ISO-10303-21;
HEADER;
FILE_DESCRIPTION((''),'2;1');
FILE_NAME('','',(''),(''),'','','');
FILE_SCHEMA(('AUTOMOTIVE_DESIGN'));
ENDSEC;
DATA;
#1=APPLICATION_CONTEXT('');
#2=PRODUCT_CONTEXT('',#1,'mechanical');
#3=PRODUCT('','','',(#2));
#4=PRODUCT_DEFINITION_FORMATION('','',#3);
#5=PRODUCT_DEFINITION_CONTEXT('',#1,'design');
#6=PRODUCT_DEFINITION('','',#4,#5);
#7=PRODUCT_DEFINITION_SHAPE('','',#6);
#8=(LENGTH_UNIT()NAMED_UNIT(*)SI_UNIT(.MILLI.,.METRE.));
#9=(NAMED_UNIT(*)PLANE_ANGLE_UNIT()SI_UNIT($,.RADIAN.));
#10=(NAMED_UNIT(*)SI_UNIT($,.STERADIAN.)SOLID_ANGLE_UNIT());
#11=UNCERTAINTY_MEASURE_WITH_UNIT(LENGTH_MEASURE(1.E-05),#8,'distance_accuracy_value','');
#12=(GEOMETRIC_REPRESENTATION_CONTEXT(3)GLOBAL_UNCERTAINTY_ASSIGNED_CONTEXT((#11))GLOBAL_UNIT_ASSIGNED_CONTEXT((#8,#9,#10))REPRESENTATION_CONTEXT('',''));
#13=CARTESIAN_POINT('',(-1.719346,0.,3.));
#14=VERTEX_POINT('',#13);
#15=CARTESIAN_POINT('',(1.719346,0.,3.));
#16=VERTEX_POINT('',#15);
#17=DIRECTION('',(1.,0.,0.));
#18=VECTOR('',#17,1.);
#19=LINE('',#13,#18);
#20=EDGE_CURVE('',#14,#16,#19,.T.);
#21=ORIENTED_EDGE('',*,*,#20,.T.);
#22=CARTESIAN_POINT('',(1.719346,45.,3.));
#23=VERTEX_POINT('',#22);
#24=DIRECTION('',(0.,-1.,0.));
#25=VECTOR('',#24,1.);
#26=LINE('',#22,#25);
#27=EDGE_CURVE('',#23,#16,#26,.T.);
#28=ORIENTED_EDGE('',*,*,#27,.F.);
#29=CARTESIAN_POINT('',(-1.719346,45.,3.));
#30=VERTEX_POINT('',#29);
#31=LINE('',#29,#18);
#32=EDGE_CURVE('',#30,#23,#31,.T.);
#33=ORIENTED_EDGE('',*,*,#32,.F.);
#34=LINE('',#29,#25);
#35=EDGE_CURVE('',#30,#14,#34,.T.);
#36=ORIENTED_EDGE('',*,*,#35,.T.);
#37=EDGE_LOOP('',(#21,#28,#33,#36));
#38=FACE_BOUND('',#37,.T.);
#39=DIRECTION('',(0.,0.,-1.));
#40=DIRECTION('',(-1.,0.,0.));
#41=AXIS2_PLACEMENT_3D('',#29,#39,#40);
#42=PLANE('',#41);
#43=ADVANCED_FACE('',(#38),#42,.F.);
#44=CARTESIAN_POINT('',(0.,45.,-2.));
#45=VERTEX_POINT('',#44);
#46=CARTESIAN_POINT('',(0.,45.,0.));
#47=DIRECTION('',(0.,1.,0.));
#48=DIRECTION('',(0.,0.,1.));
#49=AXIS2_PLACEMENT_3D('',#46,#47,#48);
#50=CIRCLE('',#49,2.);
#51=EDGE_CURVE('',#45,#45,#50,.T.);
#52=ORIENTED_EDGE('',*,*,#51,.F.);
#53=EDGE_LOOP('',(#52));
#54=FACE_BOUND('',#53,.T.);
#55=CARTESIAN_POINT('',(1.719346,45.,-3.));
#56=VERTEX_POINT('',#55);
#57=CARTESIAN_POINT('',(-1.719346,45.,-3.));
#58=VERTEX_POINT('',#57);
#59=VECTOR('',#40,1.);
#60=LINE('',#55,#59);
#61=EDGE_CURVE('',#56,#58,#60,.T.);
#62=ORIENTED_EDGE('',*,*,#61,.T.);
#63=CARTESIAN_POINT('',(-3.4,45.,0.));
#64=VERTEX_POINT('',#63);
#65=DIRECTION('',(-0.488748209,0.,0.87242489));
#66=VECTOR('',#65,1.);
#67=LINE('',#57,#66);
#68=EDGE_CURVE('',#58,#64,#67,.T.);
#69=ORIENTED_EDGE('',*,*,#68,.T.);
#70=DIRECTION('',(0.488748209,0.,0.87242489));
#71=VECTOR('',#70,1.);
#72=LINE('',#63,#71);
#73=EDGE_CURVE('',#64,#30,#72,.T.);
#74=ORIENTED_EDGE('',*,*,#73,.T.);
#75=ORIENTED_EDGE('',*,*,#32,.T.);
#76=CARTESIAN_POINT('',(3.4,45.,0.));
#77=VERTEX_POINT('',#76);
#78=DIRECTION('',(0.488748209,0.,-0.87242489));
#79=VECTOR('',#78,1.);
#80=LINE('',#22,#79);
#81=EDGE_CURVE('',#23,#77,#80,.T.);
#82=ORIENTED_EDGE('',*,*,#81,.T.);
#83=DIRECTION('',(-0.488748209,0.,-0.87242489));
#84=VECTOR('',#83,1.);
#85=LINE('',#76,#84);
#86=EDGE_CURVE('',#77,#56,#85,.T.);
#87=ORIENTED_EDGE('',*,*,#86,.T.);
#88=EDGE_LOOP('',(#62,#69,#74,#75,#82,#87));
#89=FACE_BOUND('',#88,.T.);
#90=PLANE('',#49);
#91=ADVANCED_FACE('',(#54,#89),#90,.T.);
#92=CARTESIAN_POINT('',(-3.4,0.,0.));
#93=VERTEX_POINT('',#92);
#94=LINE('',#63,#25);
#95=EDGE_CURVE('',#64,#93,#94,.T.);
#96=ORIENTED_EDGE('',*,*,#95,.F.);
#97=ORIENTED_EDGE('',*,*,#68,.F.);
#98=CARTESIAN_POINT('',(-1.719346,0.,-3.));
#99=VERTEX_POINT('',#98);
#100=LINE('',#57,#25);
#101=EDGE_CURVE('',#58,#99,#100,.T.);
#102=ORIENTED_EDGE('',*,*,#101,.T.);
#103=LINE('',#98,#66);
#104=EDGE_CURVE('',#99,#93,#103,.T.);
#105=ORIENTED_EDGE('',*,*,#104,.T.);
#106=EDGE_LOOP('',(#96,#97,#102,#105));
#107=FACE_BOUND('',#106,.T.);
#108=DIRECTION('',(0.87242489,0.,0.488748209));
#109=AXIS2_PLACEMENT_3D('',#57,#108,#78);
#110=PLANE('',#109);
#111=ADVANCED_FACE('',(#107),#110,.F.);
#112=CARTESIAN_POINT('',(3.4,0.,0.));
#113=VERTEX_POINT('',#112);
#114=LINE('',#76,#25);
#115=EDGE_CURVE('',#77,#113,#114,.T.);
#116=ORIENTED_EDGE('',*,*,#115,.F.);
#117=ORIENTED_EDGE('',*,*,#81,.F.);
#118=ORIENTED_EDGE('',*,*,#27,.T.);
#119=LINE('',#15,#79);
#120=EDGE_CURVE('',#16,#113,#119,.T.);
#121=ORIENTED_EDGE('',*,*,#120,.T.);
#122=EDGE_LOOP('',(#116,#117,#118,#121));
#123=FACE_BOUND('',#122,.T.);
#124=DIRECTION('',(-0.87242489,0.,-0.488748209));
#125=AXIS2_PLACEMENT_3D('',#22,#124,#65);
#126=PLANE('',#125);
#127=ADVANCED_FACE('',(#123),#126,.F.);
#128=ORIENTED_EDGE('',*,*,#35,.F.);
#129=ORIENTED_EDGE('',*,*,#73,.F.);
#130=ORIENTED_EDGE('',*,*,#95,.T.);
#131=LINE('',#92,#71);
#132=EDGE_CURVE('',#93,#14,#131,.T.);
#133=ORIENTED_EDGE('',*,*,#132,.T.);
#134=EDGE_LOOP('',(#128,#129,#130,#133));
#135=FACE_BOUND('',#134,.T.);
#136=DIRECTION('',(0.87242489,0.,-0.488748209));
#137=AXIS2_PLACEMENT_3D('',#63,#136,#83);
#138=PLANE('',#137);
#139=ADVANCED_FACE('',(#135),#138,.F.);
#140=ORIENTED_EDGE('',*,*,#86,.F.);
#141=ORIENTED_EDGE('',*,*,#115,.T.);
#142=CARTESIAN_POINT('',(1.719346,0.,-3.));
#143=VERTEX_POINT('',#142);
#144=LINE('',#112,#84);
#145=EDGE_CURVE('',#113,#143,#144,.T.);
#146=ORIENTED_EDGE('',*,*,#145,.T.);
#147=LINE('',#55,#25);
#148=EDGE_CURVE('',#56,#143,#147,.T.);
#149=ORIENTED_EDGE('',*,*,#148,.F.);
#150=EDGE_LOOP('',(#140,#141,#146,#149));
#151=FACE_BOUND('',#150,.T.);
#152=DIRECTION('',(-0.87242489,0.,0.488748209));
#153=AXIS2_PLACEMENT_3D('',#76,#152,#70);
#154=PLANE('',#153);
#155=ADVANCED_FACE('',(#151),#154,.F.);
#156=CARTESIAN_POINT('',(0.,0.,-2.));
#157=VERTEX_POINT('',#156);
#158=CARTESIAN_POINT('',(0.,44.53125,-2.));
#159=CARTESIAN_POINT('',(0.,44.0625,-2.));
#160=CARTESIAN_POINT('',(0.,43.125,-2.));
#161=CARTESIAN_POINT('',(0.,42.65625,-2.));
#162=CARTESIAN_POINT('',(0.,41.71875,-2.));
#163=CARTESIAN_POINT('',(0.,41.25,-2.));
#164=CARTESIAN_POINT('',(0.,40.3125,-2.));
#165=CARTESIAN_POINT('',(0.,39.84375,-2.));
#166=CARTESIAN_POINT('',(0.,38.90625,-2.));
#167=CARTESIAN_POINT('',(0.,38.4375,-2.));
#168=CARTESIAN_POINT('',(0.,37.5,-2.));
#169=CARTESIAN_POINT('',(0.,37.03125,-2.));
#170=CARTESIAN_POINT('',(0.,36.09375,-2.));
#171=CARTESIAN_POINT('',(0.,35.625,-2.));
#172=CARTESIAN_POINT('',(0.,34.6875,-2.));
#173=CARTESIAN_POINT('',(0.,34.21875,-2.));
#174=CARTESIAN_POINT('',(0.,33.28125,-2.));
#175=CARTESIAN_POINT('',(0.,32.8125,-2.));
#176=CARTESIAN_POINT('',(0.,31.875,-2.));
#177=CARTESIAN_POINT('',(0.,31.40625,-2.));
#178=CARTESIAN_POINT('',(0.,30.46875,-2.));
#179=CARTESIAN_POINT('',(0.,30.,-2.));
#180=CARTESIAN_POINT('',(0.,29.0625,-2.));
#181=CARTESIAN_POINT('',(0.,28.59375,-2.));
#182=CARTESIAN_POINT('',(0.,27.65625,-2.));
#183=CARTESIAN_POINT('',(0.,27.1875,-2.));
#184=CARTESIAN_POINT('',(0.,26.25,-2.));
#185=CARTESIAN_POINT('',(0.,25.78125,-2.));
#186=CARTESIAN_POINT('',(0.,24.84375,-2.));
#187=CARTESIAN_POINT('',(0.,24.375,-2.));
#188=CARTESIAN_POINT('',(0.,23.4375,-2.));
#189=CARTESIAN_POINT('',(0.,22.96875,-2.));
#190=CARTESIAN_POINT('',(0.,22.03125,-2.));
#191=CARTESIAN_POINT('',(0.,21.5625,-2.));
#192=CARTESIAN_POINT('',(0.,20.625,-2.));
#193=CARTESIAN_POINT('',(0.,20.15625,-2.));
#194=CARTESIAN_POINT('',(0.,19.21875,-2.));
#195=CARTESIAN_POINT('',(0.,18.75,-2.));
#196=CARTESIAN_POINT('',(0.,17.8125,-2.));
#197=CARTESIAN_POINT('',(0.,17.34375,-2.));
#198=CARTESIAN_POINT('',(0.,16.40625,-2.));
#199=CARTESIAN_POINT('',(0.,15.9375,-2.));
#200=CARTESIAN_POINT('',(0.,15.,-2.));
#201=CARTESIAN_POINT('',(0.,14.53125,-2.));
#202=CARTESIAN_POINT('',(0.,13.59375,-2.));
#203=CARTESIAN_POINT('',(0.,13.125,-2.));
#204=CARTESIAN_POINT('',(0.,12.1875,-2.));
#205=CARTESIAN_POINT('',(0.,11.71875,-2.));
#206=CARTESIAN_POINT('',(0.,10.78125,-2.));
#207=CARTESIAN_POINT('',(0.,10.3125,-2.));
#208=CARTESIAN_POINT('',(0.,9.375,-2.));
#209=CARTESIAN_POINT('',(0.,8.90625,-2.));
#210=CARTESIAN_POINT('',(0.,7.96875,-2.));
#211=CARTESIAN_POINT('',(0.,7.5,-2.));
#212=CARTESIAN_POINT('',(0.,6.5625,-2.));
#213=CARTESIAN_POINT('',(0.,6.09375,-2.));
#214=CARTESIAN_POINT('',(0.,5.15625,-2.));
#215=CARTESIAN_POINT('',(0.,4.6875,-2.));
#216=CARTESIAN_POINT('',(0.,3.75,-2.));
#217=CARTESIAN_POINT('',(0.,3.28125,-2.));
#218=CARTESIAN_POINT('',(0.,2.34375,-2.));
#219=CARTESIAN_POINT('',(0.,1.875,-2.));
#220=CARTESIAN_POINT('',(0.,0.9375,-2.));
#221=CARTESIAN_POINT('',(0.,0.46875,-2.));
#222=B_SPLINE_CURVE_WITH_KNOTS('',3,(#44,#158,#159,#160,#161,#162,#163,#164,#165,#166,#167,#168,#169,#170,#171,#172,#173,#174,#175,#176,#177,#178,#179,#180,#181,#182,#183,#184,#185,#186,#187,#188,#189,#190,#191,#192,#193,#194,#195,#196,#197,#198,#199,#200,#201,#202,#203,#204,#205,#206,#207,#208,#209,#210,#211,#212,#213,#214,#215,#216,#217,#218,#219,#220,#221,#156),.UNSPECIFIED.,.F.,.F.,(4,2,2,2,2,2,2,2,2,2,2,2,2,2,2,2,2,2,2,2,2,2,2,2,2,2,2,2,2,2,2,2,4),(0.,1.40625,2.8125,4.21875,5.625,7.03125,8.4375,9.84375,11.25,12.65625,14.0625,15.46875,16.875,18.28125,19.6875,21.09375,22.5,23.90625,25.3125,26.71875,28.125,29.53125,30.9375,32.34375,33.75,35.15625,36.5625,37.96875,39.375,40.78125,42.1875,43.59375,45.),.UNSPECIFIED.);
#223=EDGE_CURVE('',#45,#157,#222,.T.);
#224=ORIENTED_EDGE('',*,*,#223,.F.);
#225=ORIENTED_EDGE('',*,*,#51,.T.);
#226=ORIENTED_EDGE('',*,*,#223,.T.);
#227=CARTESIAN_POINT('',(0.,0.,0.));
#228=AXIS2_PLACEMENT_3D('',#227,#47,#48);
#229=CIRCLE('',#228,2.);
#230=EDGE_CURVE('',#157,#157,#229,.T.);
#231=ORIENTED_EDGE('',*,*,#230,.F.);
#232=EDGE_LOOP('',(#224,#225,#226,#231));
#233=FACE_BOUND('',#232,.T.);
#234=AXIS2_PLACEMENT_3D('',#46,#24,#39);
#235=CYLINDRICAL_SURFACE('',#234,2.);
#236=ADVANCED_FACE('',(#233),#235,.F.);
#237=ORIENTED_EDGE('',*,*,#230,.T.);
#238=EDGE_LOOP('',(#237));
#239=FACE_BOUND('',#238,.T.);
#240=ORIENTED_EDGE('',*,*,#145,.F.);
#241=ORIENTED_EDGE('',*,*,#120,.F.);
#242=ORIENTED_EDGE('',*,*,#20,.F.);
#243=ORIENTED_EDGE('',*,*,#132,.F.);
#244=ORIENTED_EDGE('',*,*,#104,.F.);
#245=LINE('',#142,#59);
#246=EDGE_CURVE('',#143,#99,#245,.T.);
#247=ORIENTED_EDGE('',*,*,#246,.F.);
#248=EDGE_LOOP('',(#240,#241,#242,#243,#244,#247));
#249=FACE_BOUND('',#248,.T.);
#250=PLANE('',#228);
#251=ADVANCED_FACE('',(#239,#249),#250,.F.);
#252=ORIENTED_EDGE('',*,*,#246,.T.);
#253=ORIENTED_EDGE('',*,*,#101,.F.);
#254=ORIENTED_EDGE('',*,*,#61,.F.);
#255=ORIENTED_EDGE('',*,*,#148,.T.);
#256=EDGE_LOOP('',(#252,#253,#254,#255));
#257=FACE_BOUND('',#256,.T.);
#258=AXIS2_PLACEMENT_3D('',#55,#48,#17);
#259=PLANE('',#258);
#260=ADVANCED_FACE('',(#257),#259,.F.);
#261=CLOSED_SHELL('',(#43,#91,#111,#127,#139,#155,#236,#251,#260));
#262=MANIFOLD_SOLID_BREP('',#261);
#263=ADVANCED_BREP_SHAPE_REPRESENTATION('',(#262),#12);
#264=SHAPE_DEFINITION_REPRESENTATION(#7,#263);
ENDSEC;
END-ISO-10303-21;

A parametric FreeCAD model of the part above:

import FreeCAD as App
import Part
import Sketcher

doc = App.newDocument("Part")
body = doc.addObject("PartDesign::Body", "Body")

# Sketch on XZ plane
sketch1 = body.newObject("Sketcher::SketchObject", "Sketch")
sketch1.AttachmentSupport = (doc.getObject("XZ_Plane"), [""])
sketch1.MapMode = "FlatFace"
sketch1.addGeometry([
    Part.LineSegment(App.Vector(1.7, 3, 0), App.Vector(3.4, 0, 0)),  # 0
    Part.LineSegment(App.Vector(3.4, 0, 0), App.Vector(1.7, -3, 0)),  # 1
    Part.LineSegment(App.Vector(1.7, -3, 0), App.Vector(-1.7, -3, 0)),  # 2
    Part.LineSegment(App.Vector(-1.7, -3, 0), App.Vector(-3.4, 0, 0)),  # 3
    Part.LineSegment(App.Vector(-3.4, 0, 0), App.Vector(-1.7, 3, 0)),  # 4
    Part.LineSegment(App.Vector(-1.7, 3, 0), App.Vector(1.7, 3, 0)),  # 5
    Part.Circle(App.Vector(0, 0, 0), App.Vector(0, 0, 1), 2),  # 6
], False)
sketch1.addConstraint([
    Sketcher.Constraint("Coincident", 0, 2, 1, 1),
    Sketcher.Constraint("Coincident", 1, 2, 2, 1),
    Sketcher.Constraint("Coincident", 2, 2, 3, 1),
    Sketcher.Constraint("Coincident", 3, 2, 4, 1),
    Sketcher.Constraint("Coincident", 4, 2, 5, 1),
    Sketcher.Constraint("Coincident", 5, 2, 0, 1),
    Sketcher.Constraint("Horizontal", 2),
    Sketcher.Constraint("Horizontal", 5),
    Sketcher.Constraint("Coincident", 6, 3, -1, 1),
    Sketcher.Constraint("Symmetric", 0, 2, 3, 2, -1, 1),
    Sketcher.Constraint("Symmetric", 1, 2, 4, 2, -1, 1),
    Sketcher.Constraint("PointOnObject", 0, 2, -1),
    Sketcher.Constraint("Parallel", 0, 3),
    Sketcher.Constraint("Vertical", 2, 2, 4, 2),
    Sketcher.Constraint("Diameter", 6, 4.0),
    Sketcher.Constraint("DistanceY", 1, 2, -1, 1, 3.0),
    Sketcher.Constraint("DistanceX", -1, 1, 0, 2, 3.4),
    Sketcher.Constraint("DistanceX", 2, 2, 2, 1, 3.438691),
])
pad1 = body.newObject("PartDesign::Pad", "Pad")
pad1.Profile = sketch1
pad1.Length = 45
pad1.Reversed = True

doc.recompute()
